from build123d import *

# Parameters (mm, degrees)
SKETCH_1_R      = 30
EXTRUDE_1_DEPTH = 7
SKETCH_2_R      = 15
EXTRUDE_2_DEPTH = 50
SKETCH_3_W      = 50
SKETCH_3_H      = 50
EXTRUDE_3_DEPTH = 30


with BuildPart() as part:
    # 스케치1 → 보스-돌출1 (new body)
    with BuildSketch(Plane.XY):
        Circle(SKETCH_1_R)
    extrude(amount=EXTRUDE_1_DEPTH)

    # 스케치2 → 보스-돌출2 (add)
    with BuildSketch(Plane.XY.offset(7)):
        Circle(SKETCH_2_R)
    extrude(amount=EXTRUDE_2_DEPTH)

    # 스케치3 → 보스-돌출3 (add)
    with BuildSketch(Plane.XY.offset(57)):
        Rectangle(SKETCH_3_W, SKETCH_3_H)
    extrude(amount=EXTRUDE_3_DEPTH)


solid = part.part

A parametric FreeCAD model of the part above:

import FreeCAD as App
import Part
import Sketcher


def add_polygon(sketch, points):
    """Adds a closed chain of lines whose ends are joined by coincident constraints."""
    first, n = sketch.GeometryCount, len(points)
    for a, b in zip(points, points[1:] + points[:1]):
        sketch.addGeometry(Part.LineSegment(App.Vector(*a, 0), App.Vector(*b, 0)), False)
    for i in range(n):
        sketch.addConstraint(Sketcher.Constraint("Coincident", first + i, 2, first + (i + 1) % n, 1))

doc = App.newDocument("Part")
body = doc.addObject("PartDesign::Body", "Body")

# Sketch on XY plane
sketch1 = body.newObject("Sketcher::SketchObject", "Sketch")
sketch1.AttachmentSupport = (doc.getObject("XY_Plane"), [""])
sketch1.MapMode = "FlatFace"
sketch1.addGeometry(Part.Circle(App.Vector(0, 0, 0), App.Vector(0, 0, 1), 30), False)
sketch1.addConstraint([
    Sketcher.Constraint("Coincident", 0, 3, -1, 1),
    Sketcher.Constraint("Diameter", 0, 60.0),
])
pad1 = body.newObject("PartDesign::Pad", "Pad")
pad1.Profile = sketch1
pad1.Length = 7

# Sketch on XY plane
sketch2 = body.newObject("Sketcher::SketchObject", "Sketch001")
sketch2.AttachmentSupport = (doc.getObject("XY_Plane"), [""])
sketch2.MapMode = "FlatFace"
sketch2.AttachmentOffset = App.Placement(App.Vector(0, 0, 7), App.Rotation())
sketch2.addGeometry(Part.Circle(App.Vector(0, 0, 0), App.Vector(0, 0, 1), 15), False)
sketch2.addConstraint([
    Sketcher.Constraint("Coincident", 0, 3, -1, 1),
    Sketcher.Constraint("Diameter", 0, 30.0),
])
pad2 = body.newObject("PartDesign::Pad", "Pad001")
pad2.Profile = sketch2
pad2.Length = 50

# Sketch on XY plane
sketch3 = body.newObject("Sketcher::SketchObject", "Sketch002")
sketch3.AttachmentSupport = (doc.getObject("XY_Plane"), [""])
sketch3.MapMode = "FlatFace"
sketch3.AttachmentOffset = App.Placement(App.Vector(0, 0, 57), App.Rotation())
add_polygon(sketch3, [(-25, 25), (-25, -25), (25, -25), (25, 25)])  # lines 0-3
sketch3.addConstraint([
    Sketcher.Constraint("Vertical", 0),
    Sketcher.Constraint("Horizontal", 1),
    Sketcher.Constraint("Vertical", 2),
    Sketcher.Constraint("Horizontal", 3),
    Sketcher.Constraint("Symmetric", 0, 2, 2, 2, -1, 1),
    Sketcher.Constraint("Equal", 3, 0),
    Sketcher.Constraint("DistanceX", 1, 1, 1, 2, 50.0),
])
pad3 = body.newObject("PartDesign::Pad", "Pad002")
pad3.Profile = sketch3
pad3.Length = 30

doc.recompute()
